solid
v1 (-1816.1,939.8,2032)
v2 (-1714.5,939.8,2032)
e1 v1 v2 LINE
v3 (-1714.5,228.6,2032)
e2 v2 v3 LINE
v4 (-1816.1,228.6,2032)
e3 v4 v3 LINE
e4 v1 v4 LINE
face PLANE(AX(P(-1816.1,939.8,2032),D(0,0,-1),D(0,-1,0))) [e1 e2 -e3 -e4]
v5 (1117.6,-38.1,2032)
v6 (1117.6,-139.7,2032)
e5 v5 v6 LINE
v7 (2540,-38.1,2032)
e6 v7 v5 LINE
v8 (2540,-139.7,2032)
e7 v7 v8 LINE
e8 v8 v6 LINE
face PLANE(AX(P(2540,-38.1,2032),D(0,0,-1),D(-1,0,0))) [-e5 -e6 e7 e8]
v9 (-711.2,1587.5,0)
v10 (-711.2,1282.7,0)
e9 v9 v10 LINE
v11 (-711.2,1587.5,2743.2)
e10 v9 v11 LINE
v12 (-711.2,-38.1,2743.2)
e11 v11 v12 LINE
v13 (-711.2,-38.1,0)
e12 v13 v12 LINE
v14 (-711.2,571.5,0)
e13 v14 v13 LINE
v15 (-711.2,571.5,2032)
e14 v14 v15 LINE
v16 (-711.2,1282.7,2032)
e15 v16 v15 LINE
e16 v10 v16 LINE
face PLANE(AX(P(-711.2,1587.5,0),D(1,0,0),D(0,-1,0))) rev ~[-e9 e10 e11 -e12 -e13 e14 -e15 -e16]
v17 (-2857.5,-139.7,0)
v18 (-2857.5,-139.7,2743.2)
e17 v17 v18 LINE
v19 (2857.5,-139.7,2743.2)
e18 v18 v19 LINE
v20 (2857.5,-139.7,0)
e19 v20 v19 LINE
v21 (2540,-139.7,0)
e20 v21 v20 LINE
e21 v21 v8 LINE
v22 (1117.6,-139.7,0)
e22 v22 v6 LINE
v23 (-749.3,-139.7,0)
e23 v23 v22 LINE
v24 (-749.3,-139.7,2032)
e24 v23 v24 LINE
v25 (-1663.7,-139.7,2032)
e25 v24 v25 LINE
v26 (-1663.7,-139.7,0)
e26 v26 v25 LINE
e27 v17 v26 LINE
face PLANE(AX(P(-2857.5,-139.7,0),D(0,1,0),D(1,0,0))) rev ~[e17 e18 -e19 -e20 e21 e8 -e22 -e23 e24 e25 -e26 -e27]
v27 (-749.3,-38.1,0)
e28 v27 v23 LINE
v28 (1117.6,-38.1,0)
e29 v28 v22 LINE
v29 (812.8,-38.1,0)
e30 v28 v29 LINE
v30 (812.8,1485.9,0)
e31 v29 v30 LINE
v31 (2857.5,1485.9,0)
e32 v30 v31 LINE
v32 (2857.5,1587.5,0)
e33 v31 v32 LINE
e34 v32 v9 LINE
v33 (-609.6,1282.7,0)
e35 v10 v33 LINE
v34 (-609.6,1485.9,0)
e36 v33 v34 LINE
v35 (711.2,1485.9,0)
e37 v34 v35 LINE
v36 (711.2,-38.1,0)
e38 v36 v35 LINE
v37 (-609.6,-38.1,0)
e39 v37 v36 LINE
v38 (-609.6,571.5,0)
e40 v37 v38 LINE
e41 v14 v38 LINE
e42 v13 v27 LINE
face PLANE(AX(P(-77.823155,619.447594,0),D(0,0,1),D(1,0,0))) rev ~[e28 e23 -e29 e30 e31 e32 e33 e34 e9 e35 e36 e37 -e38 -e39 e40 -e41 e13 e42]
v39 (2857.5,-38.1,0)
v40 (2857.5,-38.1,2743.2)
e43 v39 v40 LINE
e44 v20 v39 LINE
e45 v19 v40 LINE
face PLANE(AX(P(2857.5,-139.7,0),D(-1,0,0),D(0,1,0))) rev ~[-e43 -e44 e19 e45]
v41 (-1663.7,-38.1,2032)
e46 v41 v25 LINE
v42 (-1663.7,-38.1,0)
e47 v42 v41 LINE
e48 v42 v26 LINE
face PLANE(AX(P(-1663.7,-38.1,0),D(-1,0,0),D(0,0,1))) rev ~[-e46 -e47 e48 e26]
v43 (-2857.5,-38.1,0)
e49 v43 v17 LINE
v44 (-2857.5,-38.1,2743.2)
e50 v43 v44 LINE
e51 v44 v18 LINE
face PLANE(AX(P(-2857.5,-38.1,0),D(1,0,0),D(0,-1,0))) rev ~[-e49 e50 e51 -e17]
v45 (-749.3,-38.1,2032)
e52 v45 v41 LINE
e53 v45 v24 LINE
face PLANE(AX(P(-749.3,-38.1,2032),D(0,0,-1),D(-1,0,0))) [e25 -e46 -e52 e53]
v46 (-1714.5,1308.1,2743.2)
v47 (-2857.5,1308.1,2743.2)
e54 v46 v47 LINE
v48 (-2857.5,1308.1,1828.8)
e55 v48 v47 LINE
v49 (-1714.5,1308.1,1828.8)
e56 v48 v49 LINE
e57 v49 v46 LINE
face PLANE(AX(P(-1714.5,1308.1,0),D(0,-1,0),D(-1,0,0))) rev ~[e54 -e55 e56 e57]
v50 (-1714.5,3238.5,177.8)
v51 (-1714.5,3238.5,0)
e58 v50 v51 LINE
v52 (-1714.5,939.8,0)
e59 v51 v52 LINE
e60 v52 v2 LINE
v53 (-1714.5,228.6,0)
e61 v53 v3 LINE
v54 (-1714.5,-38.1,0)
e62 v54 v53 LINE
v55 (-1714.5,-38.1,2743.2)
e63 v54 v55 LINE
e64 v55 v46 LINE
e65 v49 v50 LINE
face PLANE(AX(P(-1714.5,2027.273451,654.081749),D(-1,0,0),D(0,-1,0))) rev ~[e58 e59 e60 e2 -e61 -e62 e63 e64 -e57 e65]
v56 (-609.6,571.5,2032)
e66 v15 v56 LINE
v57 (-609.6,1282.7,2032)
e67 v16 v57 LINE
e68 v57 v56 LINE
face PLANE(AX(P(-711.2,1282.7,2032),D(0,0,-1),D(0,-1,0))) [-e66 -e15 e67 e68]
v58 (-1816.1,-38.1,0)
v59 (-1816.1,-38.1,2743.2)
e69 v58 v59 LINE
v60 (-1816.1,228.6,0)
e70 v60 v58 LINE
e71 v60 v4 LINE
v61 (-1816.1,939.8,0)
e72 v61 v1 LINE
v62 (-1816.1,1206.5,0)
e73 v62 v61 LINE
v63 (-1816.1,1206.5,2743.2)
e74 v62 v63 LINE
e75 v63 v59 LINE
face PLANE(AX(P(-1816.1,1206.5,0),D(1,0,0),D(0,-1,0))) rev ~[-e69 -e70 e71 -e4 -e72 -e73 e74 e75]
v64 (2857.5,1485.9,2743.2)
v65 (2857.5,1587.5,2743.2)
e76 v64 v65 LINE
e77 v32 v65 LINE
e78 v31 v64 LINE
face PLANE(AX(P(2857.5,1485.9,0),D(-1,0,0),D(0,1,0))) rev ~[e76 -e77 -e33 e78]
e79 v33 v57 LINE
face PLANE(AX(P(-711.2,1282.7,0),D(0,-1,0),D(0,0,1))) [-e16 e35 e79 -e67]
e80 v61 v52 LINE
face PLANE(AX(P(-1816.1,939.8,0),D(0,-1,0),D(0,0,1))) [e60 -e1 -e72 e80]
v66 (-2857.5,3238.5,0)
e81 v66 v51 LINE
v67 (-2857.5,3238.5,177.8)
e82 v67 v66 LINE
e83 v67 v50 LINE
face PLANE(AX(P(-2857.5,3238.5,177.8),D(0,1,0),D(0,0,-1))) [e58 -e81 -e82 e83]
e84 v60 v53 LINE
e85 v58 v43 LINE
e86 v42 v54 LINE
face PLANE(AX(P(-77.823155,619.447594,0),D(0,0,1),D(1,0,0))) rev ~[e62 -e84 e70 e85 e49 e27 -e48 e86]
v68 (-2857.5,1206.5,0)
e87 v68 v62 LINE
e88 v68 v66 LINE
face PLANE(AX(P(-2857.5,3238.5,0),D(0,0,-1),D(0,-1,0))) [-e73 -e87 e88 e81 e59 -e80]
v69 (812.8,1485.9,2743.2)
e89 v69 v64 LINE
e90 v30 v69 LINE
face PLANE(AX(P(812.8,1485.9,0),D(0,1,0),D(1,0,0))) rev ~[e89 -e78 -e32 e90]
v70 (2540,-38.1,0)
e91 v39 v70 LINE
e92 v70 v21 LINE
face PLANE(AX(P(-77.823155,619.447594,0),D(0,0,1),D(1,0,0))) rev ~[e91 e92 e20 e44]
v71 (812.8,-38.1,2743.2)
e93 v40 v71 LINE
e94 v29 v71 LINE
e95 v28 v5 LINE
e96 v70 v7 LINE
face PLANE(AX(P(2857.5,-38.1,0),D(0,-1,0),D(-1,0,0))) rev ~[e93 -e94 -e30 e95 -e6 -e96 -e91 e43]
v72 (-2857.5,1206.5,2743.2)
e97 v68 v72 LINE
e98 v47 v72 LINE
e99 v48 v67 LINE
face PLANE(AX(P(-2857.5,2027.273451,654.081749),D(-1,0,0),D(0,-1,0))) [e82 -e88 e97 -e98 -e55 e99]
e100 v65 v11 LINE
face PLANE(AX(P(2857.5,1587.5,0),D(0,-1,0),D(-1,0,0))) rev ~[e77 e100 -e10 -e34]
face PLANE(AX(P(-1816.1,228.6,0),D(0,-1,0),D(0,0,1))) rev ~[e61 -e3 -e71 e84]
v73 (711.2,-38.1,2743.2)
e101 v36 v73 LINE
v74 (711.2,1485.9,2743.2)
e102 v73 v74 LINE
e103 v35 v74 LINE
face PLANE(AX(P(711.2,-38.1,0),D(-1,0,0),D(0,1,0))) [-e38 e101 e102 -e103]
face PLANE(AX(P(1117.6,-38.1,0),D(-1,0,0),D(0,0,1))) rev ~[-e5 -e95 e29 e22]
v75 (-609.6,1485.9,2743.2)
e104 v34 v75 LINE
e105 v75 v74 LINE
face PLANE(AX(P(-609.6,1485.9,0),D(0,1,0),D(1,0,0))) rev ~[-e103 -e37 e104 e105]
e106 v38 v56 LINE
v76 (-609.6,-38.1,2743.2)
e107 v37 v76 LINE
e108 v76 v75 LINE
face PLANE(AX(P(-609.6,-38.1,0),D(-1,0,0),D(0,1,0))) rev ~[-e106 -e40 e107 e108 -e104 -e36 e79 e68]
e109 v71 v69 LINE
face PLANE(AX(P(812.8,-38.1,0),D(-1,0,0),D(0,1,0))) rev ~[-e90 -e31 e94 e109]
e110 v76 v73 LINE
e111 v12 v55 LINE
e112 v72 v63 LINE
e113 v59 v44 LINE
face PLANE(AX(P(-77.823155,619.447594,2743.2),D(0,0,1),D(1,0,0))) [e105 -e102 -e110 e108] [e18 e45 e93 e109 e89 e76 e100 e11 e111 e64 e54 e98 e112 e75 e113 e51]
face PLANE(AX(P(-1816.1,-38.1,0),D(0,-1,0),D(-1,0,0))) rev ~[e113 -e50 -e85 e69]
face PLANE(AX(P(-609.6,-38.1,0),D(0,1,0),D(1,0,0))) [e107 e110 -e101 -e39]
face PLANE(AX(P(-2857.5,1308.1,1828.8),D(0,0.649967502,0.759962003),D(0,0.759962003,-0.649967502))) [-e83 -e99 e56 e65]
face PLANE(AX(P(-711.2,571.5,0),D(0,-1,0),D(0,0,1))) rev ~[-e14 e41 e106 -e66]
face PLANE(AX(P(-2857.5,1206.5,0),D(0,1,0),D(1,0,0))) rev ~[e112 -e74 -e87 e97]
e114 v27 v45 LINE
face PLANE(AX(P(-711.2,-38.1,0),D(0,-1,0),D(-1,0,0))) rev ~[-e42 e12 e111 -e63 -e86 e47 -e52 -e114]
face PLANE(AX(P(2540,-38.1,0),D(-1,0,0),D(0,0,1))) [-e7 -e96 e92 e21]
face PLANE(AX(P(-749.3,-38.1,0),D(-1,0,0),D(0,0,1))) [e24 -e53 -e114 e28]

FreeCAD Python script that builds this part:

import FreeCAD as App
import Part
import Sketcher
from FreeCAD import Vector
Q = App.Units.Quantity

doc = App.newDocument("Part")
body = doc.addObject("PartDesign::Body", "Body")

sketch1 = body.newObject("Sketcher::SketchObject", "Sketch")
sketch1.AttachmentSupport = (doc.getObject("XY_Plane"), [""])
sketch1.MapMode = "FlatFace"
sketch1.addGeometry([
    Part.LineSegment(Vector(-1714, 1308, 0), Vector(-2858, 1308, 0)),
    Part.LineSegment(Vector(-2858, 1308, 0), Vector(-2858, 1206, 0)),
    Part.LineSegment(Vector(-2858, 1206, 0), Vector(-1816, 1206, 0)),
    Part.LineSegment(Vector(-1816, 1206, 0), Vector(-1816, -38, 0)),
    Part.LineSegment(Vector(-1816, -38, 0), Vector(-2858, -38, 0)),
    Part.LineSegment(Vector(-2858, -38, 0), Vector(-2858, -140, 0)),
    Part.LineSegment(Vector(-2858, -140, 0), Vector(2858, -140, 0)),
    Part.LineSegment(Vector(2858, -140, 0), Vector(2858, -38, 0)),
    Part.LineSegment(Vector(2858, -38, 0), Vector(813, -38, 0)),
    Part.LineSegment(Vector(813, -38, 0), Vector(813, 1486, 0)),
    Part.LineSegment(Vector(813, 1486, 0), Vector(2858, 1486, 0)),
    Part.LineSegment(Vector(2858, 1486, 0), Vector(2858, 1588, 0)),
    Part.LineSegment(Vector(2858, 1588, 0), Vector(-711, 1588, 0)),
    Part.LineSegment(Vector(-711, 1588, 0), Vector(-711, -38, 0)),
    Part.LineSegment(Vector(-711, -38, 0), Vector(-1714, -38, 0)),
    Part.LineSegment(Vector(-1714, -38, 0), Vector(-1714, 1308, 0)),
    Part.LineSegment(Vector(711, -38, 0), Vector(-610, -38, 0)),
    Part.LineSegment(Vector(-610, -38, 0), Vector(-610, 1486, 0)),
    Part.LineSegment(Vector(-610, 1486, 0), Vector(711, 1486, 0)),
    Part.LineSegment(Vector(711, 1486, 0), Vector(711, -38, 0)),
], False)
sketch1.addConstraint([
    Sketcher.Constraint("Coincident", 0, 2, 1, 1),
    Sketcher.Constraint("Coincident", 1, 2, 2, 1),
    Sketcher.Constraint("Coincident", 2, 2, 3, 1),
    Sketcher.Constraint("Coincident", 3, 2, 4, 1),
    Sketcher.Constraint("Coincident", 4, 2, 5, 1),
    Sketcher.Constraint("Coincident", 5, 2, 6, 1),
    Sketcher.Constraint("Coincident", 6, 2, 7, 1),
    Sketcher.Constraint("Coincident", 7, 2, 8, 1),
    Sketcher.Constraint("Coincident", 8, 2, 9, 1),
    Sketcher.Constraint("Coincident", 9, 2, 10, 1),
    Sketcher.Constraint("Coincident", 10, 2, 11, 1),
    Sketcher.Constraint("Coincident", 11, 2, 12, 1),
    Sketcher.Constraint("Coincident", 12, 2, 13, 1),
    Sketcher.Constraint("Coincident", 13, 2, 14, 1),
    Sketcher.Constraint("Coincident", 14, 2, 15, 1),
    Sketcher.Constraint("Coincident", 15, 2, 0, 1),
    Sketcher.Constraint("Coincident", 16, 2, 17, 1),
    Sketcher.Constraint("Coincident", 17, 2, 18, 1),
    Sketcher.Constraint("Coincident", 18, 2, 19, 1),
    Sketcher.Constraint("Coincident", 19, 2, 16, 1),
    Sketcher.Constraint("Horizontal", 0),
    Sketcher.Constraint("Vertical", 1),
    Sketcher.Constraint("Horizontal", 2),
    Sketcher.Constraint("Vertical", 3),
    Sketcher.Constraint("Horizontal", 4),
    Sketcher.Constraint("Vertical", 5),
    Sketcher.Constraint("Horizontal", 6),
    Sketcher.Constraint("Vertical", 7),
    Sketcher.Constraint("Horizontal", 8),
    Sketcher.Constraint("Vertical", 9),
    Sketcher.Constraint("Horizontal", 10),
    Sketcher.Constraint("Vertical", 11),
    Sketcher.Constraint("Horizontal", 12),
    Sketcher.Constraint("Vertical", 13),
    Sketcher.Constraint("Horizontal", 14),
    Sketcher.Constraint("Vertical", 15),
    Sketcher.Constraint("Horizontal", 16),
    Sketcher.Constraint("Vertical", 17),
    Sketcher.Constraint("Horizontal", 18),
    Sketcher.Constraint("Vertical", 19),
    Sketcher.Constraint("Symmetric", 4, 2, 7, 2, -2),
    Sketcher.Constraint("Symmetric", 13, 2, 19, 2, -2),
    Sketcher.Constraint("Horizontal", 8, 2, 13, 2),
    Sketcher.Constraint("Horizontal", 10, 2, 17, 2),
    Sketcher.Constraint("Vertical", 1, 2, 4, 2),
    Sketcher.Constraint("Vertical", 7, 2, 10, 2),
    Sketcher.Constraint("Equal", 1, 5),
    Sketcher.Constraint("Equal", 7, 11),
    Sketcher.Constraint("DistanceX", 0, 2, 0, 1, Q("45 in")),
    Sketcher.Constraint("DistanceX", 2, 1, 2, 2, Q("41 in")),
    Sketcher.Constraint("DistanceX", 6, 1, 6, 2, Q("225 in")),
    Sketcher.Constraint("DistanceX", 16, 2, 16, 1, Q("52 in")),
    Sketcher.Constraint("DistanceY", 1, 2, 1, 1, Q("4 in")),
    Sketcher.Constraint("DistanceY", 3, 2, 3, 1, Q("49 in")),
    Sketcher.Constraint("DistanceY", 9, 1, 9, 2, Q("60 in")),
    Sketcher.Constraint("DistanceX", 8, 2, 8, 1, Q("80.5 in")),
    Sketcher.Constraint("DistanceX", 12, 2, 12, 1, Q("140.5 in")),
    Sketcher.Constraint("DistanceY", -1, 1, 0, 2, Q("51.5 in")),
])
pad1 = body.newObject("PartDesign::Pad", "Pad")
pad1.Profile = sketch1
pad1.Length = Q("108 in")

sketch2 = body.newObject("Sketcher::SketchObject", "Sketch001")
sketch2.AttachmentSupport = (doc.getObject("XZ_Plane"), [""])
sketch2.MapMode = "FlatFace"
sketch2.AttachmentOffset = App.Placement(Vector(0, 0, 1.5 * 25.4), App.Rotation())
sketch2.addGeometry([
    Part.LineSegment(Vector(2540, 2032, 0), Vector(2540, 0, 0)),
    Part.LineSegment(Vector(2540, 0, 0), Vector(1118, 0, 0)),
    Part.LineSegment(Vector(1118, 0, 0), Vector(1118, 2032, 0)),
    Part.LineSegment(Vector(1118, 2032, 0), Vector(2540, 2032, 0)),
], False)
sketch2.addConstraint([
    Sketcher.Constraint("Coincident", 0, 2, 1, 1),
    Sketcher.Constraint("Coincident", 1, 2, 2, 1),
    Sketcher.Constraint("Coincident", 2, 2, 3, 1),
    Sketcher.Constraint("Coincident", 3, 2, 0, 1),
    Sketcher.Constraint("Vertical", 0),
    Sketcher.Constraint("Horizontal", 1),
    Sketcher.Constraint("Vertical", 2),
    Sketcher.Constraint("Horizontal", 3),
    Sketcher.Constraint("PointOnObject", 0, 2, -1),
    Sketcher.Constraint("DistanceX", 1, 2, 1, 1, Q("56 in")),
    Sketcher.Constraint("DistanceY", 0, 2, 0, 1, Q("80 in")),
    Sketcher.Constraint("DistanceX", -1, 1, 0, 2, Q("100 in")),
])
pocket1 = body.newObject("PartDesign::Pocket", "Pocket")
pocket1.Profile = sketch2
pocket1.Length = Q("4 in")
pocket1.Reversed = True

sketch3 = body.newObject("Sketcher::SketchObject", "Sketch002")
sketch3.AttachmentSupport = (doc.getObject("YZ_Plane"), [""])
sketch3.MapMode = "FlatFace"
sketch3.AttachmentOffset = App.Placement(Vector(0, 0, -28 * 25.4), App.Rotation())
sketch3.addGeometry([
    Part.LineSegment(Vector(1283, 2032, 0), Vector(1283, 0, 0)),
    Part.LineSegment(Vector(1283, 0, 0), Vector(572, 0, 0)),
    Part.LineSegment(Vector(572, 0, 0), Vector(572, 2032, 0)),
    Part.LineSegment(Vector(572, 2032, 0), Vector(1283, 2032, 0)),
], False)
sketch3.addConstraint([
    Sketcher.Constraint("Coincident", 0, 2, 1, 1),
    Sketcher.Constraint("Coincident", 1, 2, 2, 1),
    Sketcher.Constraint("Coincident", 2, 2, 3, 1),
    Sketcher.Constraint("Coincident", 3, 2, 0, 1),
    Sketcher.Constraint("Vertical", 0),
    Sketcher.Constraint("Horizontal", 1),
    Sketcher.Constraint("Vertical", 2),
    Sketcher.Constraint("Horizontal", 3),
    Sketcher.Constraint("PointOnObject", 0, 2, -1),
    Sketcher.Constraint("DistanceX", 1, 2, 1, 1, Q("28 in")),
    Sketcher.Constraint("DistanceY", 0, 2, 0, 1, Q("80 in")),
    Sketcher.Constraint("DistanceX", -1, 1, 0, 2, Q("50.5 in")),
])
pocket2 = body.newObject("PartDesign::Pocket", "Pocket001")
pocket2.Profile = sketch3
pocket2.Length = Q("4 in")
pocket2.Reversed = True

sketch4 = body.newObject("Sketcher::SketchObject", "Sketch003")
sketch4.AttachmentSupport = (doc.getObject("XZ_Plane"), [""])
sketch4.MapMode = "FlatFace"
sketch4.AttachmentOffset = App.Placement(Vector(0, 0, 1.5 * 25.4), App.Rotation())
sketch4.addGeometry([
    Part.LineSegment(Vector(-749, 2032, 0), Vector(-749, 0, 0)),
    Part.LineSegment(Vector(-749, 0, 0), Vector(-1664, 0, 0)),
    Part.LineSegment(Vector(-1664, 0, 0), Vector(-1664, 2032, 0)),
    Part.LineSegment(Vector(-1664, 2032, 0), Vector(-749, 2032, 0)),
], False)
sketch4.addConstraint([
    Sketcher.Constraint("Coincident", 0, 2, 1, 1),
    Sketcher.Constraint("Coincident", 1, 2, 2, 1),
    Sketcher.Constraint("Coincident", 2, 2, 3, 1),
    Sketcher.Constraint("Coincident", 3, 2, 0, 1),
    Sketcher.Constraint("Vertical", 0),
    Sketcher.Constraint("Horizontal", 1),
    Sketcher.Constraint("Vertical", 2),
    Sketcher.Constraint("Horizontal", 3),
    Sketcher.Constraint("PointOnObject", 0, 2, -1),
    Sketcher.Constraint("DistanceX", 1, 2, 1, 1, Q("36 in")),
    Sketcher.Constraint("DistanceY", 0, 2, 0, 1, Q("80 in")),
    Sketcher.Constraint("DistanceX", 0, 2, -1, 1, Q("29.5 in")),
])
pocket3 = body.newObject("PartDesign::Pocket", "Pocket002")
pocket3.Profile = sketch4
pocket3.Length = Q("4 in")
pocket3.Reversed = True

sketch5 = body.newObject("Sketcher::SketchObject", "Sketch004")
sketch5.AttachmentSupport = (doc.getObject("YZ_Plane"), [""])
sketch5.MapMode = "FlatFace"
sketch5.AttachmentOffset = App.Placement(Vector(0, 0, -71.5 * 25.4), App.Rotation())
sketch5.addGeometry([
    Part.LineSegment(Vector(940, 2032, 0), Vector(940, 0, 0)),
    Part.LineSegment(Vector(940, 0, 0), Vector(229, 0, 0)),
    Part.LineSegment(Vector(229, 0, 0), Vector(229, 2032, 0)),
    Part.LineSegment(Vector(229, 2032, 0), Vector(940, 2032, 0)),
], False)
sketch5.addConstraint([
    Sketcher.Constraint("Coincident", 0, 2, 1, 1),
    Sketcher.Constraint("Coincident", 1, 2, 2, 1),
    Sketcher.Constraint("Coincident", 2, 2, 3, 1),
    Sketcher.Constraint("Coincident", 3, 2, 0, 1),
    Sketcher.Constraint("Vertical", 0),
    Sketcher.Constraint("Horizontal", 1),
    Sketcher.Constraint("Vertical", 2),
    Sketcher.Constraint("Horizontal", 3),
    Sketcher.Constraint("PointOnObject", 0, 2, -1),
    Sketcher.Constraint("DistanceX", 1, 2, 1, 1, Q("28 in")),
    Sketcher.Constraint("DistanceY", 0, 2, 0, 1, Q("80 in")),
    Sketcher.Constraint("DistanceX", -1, 1, 0, 2, Q("37 in")),
])
pocket4 = body.newObject("PartDesign::Pocket", "Pocket003")
pocket4.Profile = sketch5
pocket4.Length = Q("4 in")
pocket4.Reversed = True

sketch6 = body.newObject("Sketcher::SketchObject", "Sketch005")
sketch6.AttachmentSupport = (doc.getObject("YZ_Plane"), [""])
sketch6.MapMode = "FlatFace"
sketch6.AttachmentOffset = App.Placement(Vector(0, 0, -112.5 * 25.4), App.Rotation())
sketch6.addGeometry([
    Part.LineSegment(Vector(3238, 0, 0), Vector(1308, 0, 0)),
    Part.LineSegment(Vector(1308, 0, 0), Vector(1308, 1829, 0)),
    Part.LineSegment(Vector(1308, 1829, 0), Vector(3238, 178, 0)),
    Part.LineSegment(Vector(3238, 178, 0), Vector(3238, 0, 0)),
], False)
sketch6.addConstraint([
    Sketcher.Constraint("Coincident", 0, 2, 1, 1),
    Sketcher.Constraint("Coincident", 1, 2, 2, 1),
    Sketcher.Constraint("Coincident", 2, 2, 3, 1),
    Sketcher.Constraint("Coincident", 3, 2, 0, 1),
    Sketcher.Constraint("Horizontal", 0),
    Sketcher.Constraint("Vertical", 1),
    Sketcher.Constraint("Vertical", 3),
    Sketcher.Constraint("PointOnObject", 0, 2, -1),
    Sketcher.Constraint("DistanceX", 0, 2, 0, 1, Q("76 in")),
    Sketcher.Constraint("DistanceY", 1, 1, 1, 2, Q("72 in")),
    Sketcher.Constraint("DistanceY", 3, 2, 3, 1, Q("7 in")),
    Sketcher.Constraint("DistanceX", -1, 1, 0, 2, Q("51.5 in")),
])
pad2 = body.newObject("PartDesign::Pad", "Pad001")
pad2.Profile = sketch6
pad2.Length = Q("45 in")

doc.recompute()
